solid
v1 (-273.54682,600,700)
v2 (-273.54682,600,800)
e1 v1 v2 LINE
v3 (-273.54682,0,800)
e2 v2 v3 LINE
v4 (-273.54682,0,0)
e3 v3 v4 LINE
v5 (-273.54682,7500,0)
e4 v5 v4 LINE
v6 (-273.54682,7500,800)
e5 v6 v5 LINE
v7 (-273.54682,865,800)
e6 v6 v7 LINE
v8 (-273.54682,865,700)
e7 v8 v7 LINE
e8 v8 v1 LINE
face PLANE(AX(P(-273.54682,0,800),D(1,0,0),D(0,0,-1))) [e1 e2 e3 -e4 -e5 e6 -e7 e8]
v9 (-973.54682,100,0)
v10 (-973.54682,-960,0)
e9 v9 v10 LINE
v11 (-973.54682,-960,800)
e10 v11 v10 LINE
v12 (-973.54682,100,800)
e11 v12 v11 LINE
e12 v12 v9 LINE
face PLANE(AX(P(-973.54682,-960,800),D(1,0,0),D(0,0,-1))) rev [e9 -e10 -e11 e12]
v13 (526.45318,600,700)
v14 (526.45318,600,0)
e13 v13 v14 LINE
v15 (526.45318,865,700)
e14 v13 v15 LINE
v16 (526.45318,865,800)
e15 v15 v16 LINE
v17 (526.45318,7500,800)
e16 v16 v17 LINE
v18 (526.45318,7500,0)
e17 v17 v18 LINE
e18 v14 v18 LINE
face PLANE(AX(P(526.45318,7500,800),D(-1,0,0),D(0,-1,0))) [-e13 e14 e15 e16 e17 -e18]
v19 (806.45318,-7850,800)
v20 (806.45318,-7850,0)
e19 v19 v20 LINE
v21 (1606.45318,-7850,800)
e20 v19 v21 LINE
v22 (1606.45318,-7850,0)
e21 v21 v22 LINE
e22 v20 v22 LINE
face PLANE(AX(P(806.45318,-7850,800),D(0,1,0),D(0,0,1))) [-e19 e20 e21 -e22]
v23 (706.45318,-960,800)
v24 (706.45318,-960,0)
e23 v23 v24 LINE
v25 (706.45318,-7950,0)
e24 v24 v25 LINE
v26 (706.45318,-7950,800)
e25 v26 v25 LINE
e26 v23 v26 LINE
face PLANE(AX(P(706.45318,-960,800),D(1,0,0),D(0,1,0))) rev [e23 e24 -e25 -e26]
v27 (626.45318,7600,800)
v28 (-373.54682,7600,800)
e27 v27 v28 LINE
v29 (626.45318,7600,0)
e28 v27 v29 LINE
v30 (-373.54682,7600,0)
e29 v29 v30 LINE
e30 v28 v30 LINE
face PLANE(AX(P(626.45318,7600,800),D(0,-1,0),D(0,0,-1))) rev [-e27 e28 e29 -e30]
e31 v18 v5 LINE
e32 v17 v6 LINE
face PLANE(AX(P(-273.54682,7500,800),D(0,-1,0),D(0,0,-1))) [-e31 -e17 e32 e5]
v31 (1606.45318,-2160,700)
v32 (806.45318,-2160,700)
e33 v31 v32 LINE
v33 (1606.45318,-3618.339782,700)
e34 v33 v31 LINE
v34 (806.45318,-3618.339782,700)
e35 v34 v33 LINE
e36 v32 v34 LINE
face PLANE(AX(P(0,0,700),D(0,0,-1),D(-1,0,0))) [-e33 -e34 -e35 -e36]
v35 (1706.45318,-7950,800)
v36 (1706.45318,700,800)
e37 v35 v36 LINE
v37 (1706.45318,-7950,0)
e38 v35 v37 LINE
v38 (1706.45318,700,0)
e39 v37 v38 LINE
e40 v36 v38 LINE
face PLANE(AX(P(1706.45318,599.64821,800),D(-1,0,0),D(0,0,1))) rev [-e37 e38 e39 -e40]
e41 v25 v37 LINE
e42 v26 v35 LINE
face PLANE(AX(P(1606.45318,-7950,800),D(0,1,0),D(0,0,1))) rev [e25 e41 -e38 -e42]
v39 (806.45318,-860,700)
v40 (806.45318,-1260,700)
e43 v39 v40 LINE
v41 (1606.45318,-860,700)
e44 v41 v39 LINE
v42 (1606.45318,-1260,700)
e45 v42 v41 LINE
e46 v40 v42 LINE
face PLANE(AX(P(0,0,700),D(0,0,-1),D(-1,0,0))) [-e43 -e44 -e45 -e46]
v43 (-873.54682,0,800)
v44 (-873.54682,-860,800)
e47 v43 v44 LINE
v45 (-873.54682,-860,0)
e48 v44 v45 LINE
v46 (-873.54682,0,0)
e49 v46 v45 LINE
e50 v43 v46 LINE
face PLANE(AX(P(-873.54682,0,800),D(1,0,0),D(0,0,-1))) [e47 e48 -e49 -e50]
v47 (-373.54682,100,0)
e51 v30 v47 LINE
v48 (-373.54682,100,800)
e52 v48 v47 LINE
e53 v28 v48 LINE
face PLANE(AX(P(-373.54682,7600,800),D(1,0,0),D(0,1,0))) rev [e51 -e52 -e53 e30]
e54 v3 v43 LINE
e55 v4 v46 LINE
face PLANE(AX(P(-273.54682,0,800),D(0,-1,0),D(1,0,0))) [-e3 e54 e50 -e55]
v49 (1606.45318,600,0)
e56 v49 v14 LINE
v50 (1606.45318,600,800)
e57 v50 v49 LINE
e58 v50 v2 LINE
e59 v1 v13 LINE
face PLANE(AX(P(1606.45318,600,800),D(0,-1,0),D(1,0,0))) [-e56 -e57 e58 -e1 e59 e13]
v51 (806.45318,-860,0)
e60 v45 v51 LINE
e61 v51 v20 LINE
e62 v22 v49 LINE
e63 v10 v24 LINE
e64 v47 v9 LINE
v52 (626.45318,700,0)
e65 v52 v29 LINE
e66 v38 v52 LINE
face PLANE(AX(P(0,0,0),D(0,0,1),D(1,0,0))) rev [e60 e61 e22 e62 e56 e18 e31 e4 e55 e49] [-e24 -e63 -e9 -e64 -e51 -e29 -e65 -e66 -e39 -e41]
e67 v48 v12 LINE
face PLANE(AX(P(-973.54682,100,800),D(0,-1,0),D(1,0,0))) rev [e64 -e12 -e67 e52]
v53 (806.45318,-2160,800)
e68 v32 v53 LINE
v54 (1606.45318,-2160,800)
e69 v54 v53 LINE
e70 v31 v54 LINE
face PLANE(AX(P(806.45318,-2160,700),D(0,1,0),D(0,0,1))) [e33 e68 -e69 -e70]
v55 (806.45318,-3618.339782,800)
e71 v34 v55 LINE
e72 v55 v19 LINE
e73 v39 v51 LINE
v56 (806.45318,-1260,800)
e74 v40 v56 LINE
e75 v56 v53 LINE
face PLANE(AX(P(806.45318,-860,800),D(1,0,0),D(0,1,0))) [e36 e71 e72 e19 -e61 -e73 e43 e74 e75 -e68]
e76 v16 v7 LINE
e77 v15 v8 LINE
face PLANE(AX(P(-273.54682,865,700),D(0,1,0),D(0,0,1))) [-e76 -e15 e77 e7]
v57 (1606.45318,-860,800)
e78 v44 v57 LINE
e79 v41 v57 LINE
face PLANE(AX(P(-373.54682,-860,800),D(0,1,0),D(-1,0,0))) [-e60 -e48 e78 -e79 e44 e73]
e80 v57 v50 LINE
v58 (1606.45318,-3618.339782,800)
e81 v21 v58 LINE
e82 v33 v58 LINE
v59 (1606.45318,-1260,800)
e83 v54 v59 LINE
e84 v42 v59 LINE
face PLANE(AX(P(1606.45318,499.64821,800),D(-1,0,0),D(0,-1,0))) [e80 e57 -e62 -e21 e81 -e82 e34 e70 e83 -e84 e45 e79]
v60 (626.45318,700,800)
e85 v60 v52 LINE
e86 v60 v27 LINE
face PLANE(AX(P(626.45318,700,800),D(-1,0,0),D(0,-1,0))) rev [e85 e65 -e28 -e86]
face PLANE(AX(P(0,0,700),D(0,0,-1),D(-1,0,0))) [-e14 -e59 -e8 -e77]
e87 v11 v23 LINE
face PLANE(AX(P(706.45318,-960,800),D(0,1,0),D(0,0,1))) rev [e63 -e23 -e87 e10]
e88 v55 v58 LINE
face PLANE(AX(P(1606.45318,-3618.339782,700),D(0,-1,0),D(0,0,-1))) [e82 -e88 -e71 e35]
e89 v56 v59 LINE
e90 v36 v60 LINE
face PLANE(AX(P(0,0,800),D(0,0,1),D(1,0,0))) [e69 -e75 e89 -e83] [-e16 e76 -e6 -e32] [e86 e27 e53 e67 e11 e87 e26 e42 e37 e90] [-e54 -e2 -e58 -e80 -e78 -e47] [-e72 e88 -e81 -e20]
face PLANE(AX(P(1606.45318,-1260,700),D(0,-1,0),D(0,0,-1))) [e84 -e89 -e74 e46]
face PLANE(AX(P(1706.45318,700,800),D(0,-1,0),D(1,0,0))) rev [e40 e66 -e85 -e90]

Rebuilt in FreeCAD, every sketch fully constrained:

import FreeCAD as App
import Part
import Sketcher
from FreeCAD import Vector

doc = App.newDocument("Part")
body = doc.addObject("PartDesign::Body", "Body")

# Sketch on XY plane
sketch1 = body.newObject("Sketcher::SketchObject", "Sketch")
sketch1.AttachmentSupport = (doc.getObject("XY_Plane"), [""])
sketch1.MapMode = "FlatFace"
sketch1.addGeometry([
    Part.LineSegment(Vector(1706, -7950, 0), Vector(1706, 700, 0)),  # 0
    Part.LineSegment(Vector(1706, 700, 0), Vector(626, 700, 0)),  # 1
    Part.LineSegment(Vector(626, 700, 0), Vector(626, 7600, 0)),  # 2
    Part.LineSegment(Vector(626, 7600, 0), Vector(-374, 7600, 0)),  # 3
    Part.LineSegment(Vector(-374, 7600, 0), Vector(-374, 100, 0)),  # 4
    Part.LineSegment(Vector(-374, 100, 0), Vector(-974, 100, 0)),  # 5
    Part.LineSegment(Vector(-974, 100, 0), Vector(-974, -960, 0)),  # 6
    Part.LineSegment(Vector(-974, -960, 0), Vector(706, -960, 0)),  # 7
    Part.LineSegment(Vector(706, -960, 0), Vector(706, -7950, 0)),  # 8
    Part.LineSegment(Vector(706, -7950, 0), Vector(1706, -7950, 0)),  # 9
    Part.LineSegment(Vector(-874, 0, 0), Vector(-274, 0, 0)),  # 10
    Part.LineSegment(Vector(-274, 0, 0), Vector(-274, 7500, 0)),  # 11
    Part.LineSegment(Vector(-274, 7500, 0), Vector(526, 7500, 0)),  # 12
    Part.LineSegment(Vector(526, 7500, 0), Vector(526, 600, 0)),  # 13
    Part.LineSegment(Vector(526, 600, 0), Vector(1606, 600, 0)),  # 14
    Part.LineSegment(Vector(1606, 600, 0), Vector(1606, -7850, 0)),  # 15
    Part.LineSegment(Vector(1606, -7850, 0), Vector(806, -7850, 0)),  # 16
    Part.LineSegment(Vector(806, -7850, 0), Vector(806, -860, 0)),  # 17
    Part.LineSegment(Vector(806, -860, 0), Vector(-874, -860, 0)),  # 18
    Part.LineSegment(Vector(-874, -860, 0), Vector(-874, 0, 0)),  # 19
], False)
sketch1.addConstraint([
    Sketcher.Constraint("Coincident", 0, 2, 1, 1),
    Sketcher.Constraint("Coincident", 1, 2, 2, 1),
    Sketcher.Constraint("Coincident", 2, 2, 3, 1),
    Sketcher.Constraint("Coincident", 3, 2, 4, 1),
    Sketcher.Constraint("Coincident", 4, 2, 5, 1),
    Sketcher.Constraint("Coincident", 5, 2, 6, 1),
    Sketcher.Constraint("Coincident", 6, 2, 7, 1),
    Sketcher.Constraint("Coincident", 7, 2, 8, 1),
    Sketcher.Constraint("Coincident", 8, 2, 9, 1),
    Sketcher.Constraint("Coincident", 9, 2, 0, 1),
    Sketcher.Constraint("Coincident", 10, 2, 11, 1),
    Sketcher.Constraint("Coincident", 11, 2, 12, 1),
    Sketcher.Constraint("Coincident", 12, 2, 13, 1),
    Sketcher.Constraint("Coincident", 13, 2, 14, 1),
    Sketcher.Constraint("Coincident", 14, 2, 15, 1),
    Sketcher.Constraint("Coincident", 15, 2, 16, 1),
    Sketcher.Constraint("Coincident", 16, 2, 17, 1),
    Sketcher.Constraint("Coincident", 17, 2, 18, 1),
    Sketcher.Constraint("Coincident", 18, 2, 19, 1),
    Sketcher.Constraint("Coincident", 19, 2, 10, 1),
    Sketcher.Constraint("Vertical", 0),
    Sketcher.Constraint("Horizontal", 1),
    Sketcher.Constraint("Vertical", 2),
    Sketcher.Constraint("Horizontal", 3),
    Sketcher.Constraint("Vertical", 4),
    Sketcher.Constraint("Horizontal", 5),
    Sketcher.Constraint("Vertical", 6),
    Sketcher.Constraint("Horizontal", 7),
    Sketcher.Constraint("Vertical", 8),
    Sketcher.Constraint("Horizontal", 9),
    Sketcher.Constraint("Horizontal", 10),
    Sketcher.Constraint("Vertical", 11),
    Sketcher.Constraint("Horizontal", 12),
    Sketcher.Constraint("Vertical", 13),
    Sketcher.Constraint("Horizontal", 14),
    Sketcher.Constraint("Vertical", 15),
    Sketcher.Constraint("Horizontal", 16),
    Sketcher.Constraint("Vertical", 17),
    Sketcher.Constraint("Horizontal", 18),
    Sketcher.Constraint("Vertical", 19),
    Sketcher.Constraint("PointOnObject", 10, 2, -1),
    Sketcher.Constraint("Equal", 3, 9),
    Sketcher.Constraint("Equal", 5, 10),
    Sketcher.Constraint("Equal", 1, 14),
    Sketcher.Constraint("Equal", 12, 16),
    Sketcher.Constraint("Equal", 4, 11),
    Sketcher.Constraint("Equal", 2, 13),
    Sketcher.Constraint("Equal", 8, 17),
    Sketcher.Constraint("DistanceX", 1, 2, 1, 1, 1080.0),
    Sketcher.Constraint("DistanceX", 3, 2, 3, 1, 1000.0),
    Sketcher.Constraint("DistanceX", 5, 2, 5, 1, 600.0),
    Sketcher.Constraint("DistanceX", 12, 1, 12, 2, 800.0),
    Sketcher.Constraint("DistanceY", 0, 1, 0, 2, 8650.0),
    Sketcher.Constraint("DistanceY", 2, 1, 2, 2, 6900.0),
    Sketcher.Constraint("DistanceY", 4, 2, 4, 1, 7500.0),
    Sketcher.Constraint("DistanceY", 6, 2, 6, 1, 1060.0),
    Sketcher.Constraint("DistanceY", 15, 2, 15, 1, 8450.0),
    Sketcher.Constraint("DistanceY", -1, 1, 0, 2, 700.0),
    Sketcher.Constraint("DistanceX", 4, 2, 10, 2, 100.0),
    Sketcher.Constraint("DistanceX", -1, 1, 0, 2, 1706.45318),
])
pad1 = body.newObject("PartDesign::Pad", "Pad")
pad1.Profile = sketch1
pad1.Length = 800

# Sketch on XY plane
sketch2 = body.newObject("Sketcher::SketchObject", "Sketch001")
sketch2.AttachmentSupport = (doc.getObject("XY_Plane"), [""])
sketch2.MapMode = "FlatFace"
sketch2.AttachmentOffset = App.Placement(Vector(0, 0, 800), App.Rotation())
sketch2.addGeometry([
    Part.LineSegment(Vector(806, -860, 0), Vector(806, -1260, 0)),
    Part.LineSegment(Vector(806, -1260, 0), Vector(1606, -1260, 0)),
    Part.LineSegment(Vector(1606, -1260, 0), Vector(1606, -860, 0)),
    Part.LineSegment(Vector(1606, -860, 0), Vector(806, -860, 0)),
], False)
sketch2.addConstraint([
    Sketcher.Constraint("Coincident", 0, 2, 1, 1),
    Sketcher.Constraint("Coincident", 1, 2, 2, 1),
    Sketcher.Constraint("Coincident", 2, 2, 3, 1),
    Sketcher.Constraint("Coincident", 3, 2, 0, 1),
    Sketcher.Constraint("Vertical", 0),
    Sketcher.Constraint("Horizontal", 1),
    Sketcher.Constraint("Vertical", 2),
    Sketcher.Constraint("Horizontal", 3),
    Sketcher.Constraint("DistanceX", 1, 1, 1, 2, 800.0),
    Sketcher.Constraint("DistanceY", 0, 2, 0, 1, 400.0),
    Sketcher.Constraint("DistanceY", 0, 2, -1, 1, 1260.0),
    Sketcher.Constraint("DistanceX", -1, 1, 0, 2, 806.45318),
])
pad2 = body.newObject("PartDesign::Pad", "Pad001")
pad2.Profile = sketch2
pad2.Length = 100
pad2.Reversed = True

# Sketch on XY plane
sketch3 = body.newObject("Sketcher::SketchObject", "Sketch002")
sketch3.AttachmentSupport = (doc.getObject("XY_Plane"), [""])
sketch3.MapMode = "FlatFace"
sketch3.AttachmentOffset = App.Placement(Vector(0, 0, 800), App.Rotation())
sketch3.addGeometry([
    Part.LineSegment(Vector(806, -2160, 0), Vector(806, -3618, 0)),
    Part.LineSegment(Vector(806, -3618, 0), Vector(1606, -3618, 0)),
    Part.LineSegment(Vector(1606, -3618, 0), Vector(1606, -2160, 0)),
    Part.LineSegment(Vector(1606, -2160, 0), Vector(806, -2160, 0)),
], False)
sketch3.addConstraint([
    Sketcher.Constraint("Coincident", 0, 2, 1, 1),
    Sketcher.Constraint("Coincident", 1, 2, 2, 1),
    Sketcher.Constraint("Coincident", 2, 2, 3, 1),
    Sketcher.Constraint("Coincident", 3, 2, 0, 1),
    Sketcher.Constraint("Vertical", 0),
    Sketcher.Constraint("Horizontal", 1),
    Sketcher.Constraint("Vertical", 2),
    Sketcher.Constraint("Horizontal", 3),
    Sketcher.Constraint("DistanceX", 1, 1, 1, 2, 800.0),
    Sketcher.Constraint("DistanceY", 2, 2, -1, 1, 2160.0),
    Sketcher.Constraint("DistanceY", 0, 2, 0, 1, 1458.339782),
    Sketcher.Constraint("DistanceX", -1, 1, 0, 2, 806.45318),
])
pad3 = body.newObject("PartDesign::Pad", "Pad002")
pad3.Profile = sketch3
pad3.Length = 100
pad3.Reversed = True

# Sketch on XY plane
sketch4 = body.newObject("Sketcher::SketchObject", "Sketch003")
sketch4.AttachmentSupport = (doc.getObject("XY_Plane"), [""])
sketch4.MapMode = "FlatFace"
sketch4.AttachmentOffset = App.Placement(Vector(0, 0, 800), App.Rotation())
sketch4.addGeometry([
    Part.LineSegment(Vector(-274, 865, 0), Vector(-274, 600, 0)),
    Part.LineSegment(Vector(-274, 600, 0), Vector(526, 600, 0)),
    Part.LineSegment(Vector(526, 600, 0), Vector(526, 865, 0)),
    Part.LineSegment(Vector(526, 865, 0), Vector(-274, 865, 0)),
], False)
sketch4.addConstraint([
    Sketcher.Constraint("Coincident", 0, 2, 1, 1),
    Sketcher.Constraint("Coincident", 1, 2, 2, 1),
    Sketcher.Constraint("Coincident", 2, 2, 3, 1),
    Sketcher.Constraint("Coincident", 3, 2, 0, 1),
    Sketcher.Constraint("Vertical", 0),
    Sketcher.Constraint("Horizontal", 1),
    Sketcher.Constraint("Vertical", 2),
    Sketcher.Constraint("Horizontal", 3),
    Sketcher.Constraint("DistanceX", 1, 1, 1, 2, 800.0),
    Sketcher.Constraint("DistanceY", 0, 2, 0, 1, 265.0),
    Sketcher.Constraint("DistanceY", -1, 1, 0, 2, 600.0),
    Sketcher.Constraint("DistanceX", 0, 2, -1, 1, 273.54682),
])
pad4 = body.newObject("PartDesign::Pad", "Pad003")
pad4.Profile = sketch4
pad4.Length = 100
pad4.Reversed = True

doc.recompute()
